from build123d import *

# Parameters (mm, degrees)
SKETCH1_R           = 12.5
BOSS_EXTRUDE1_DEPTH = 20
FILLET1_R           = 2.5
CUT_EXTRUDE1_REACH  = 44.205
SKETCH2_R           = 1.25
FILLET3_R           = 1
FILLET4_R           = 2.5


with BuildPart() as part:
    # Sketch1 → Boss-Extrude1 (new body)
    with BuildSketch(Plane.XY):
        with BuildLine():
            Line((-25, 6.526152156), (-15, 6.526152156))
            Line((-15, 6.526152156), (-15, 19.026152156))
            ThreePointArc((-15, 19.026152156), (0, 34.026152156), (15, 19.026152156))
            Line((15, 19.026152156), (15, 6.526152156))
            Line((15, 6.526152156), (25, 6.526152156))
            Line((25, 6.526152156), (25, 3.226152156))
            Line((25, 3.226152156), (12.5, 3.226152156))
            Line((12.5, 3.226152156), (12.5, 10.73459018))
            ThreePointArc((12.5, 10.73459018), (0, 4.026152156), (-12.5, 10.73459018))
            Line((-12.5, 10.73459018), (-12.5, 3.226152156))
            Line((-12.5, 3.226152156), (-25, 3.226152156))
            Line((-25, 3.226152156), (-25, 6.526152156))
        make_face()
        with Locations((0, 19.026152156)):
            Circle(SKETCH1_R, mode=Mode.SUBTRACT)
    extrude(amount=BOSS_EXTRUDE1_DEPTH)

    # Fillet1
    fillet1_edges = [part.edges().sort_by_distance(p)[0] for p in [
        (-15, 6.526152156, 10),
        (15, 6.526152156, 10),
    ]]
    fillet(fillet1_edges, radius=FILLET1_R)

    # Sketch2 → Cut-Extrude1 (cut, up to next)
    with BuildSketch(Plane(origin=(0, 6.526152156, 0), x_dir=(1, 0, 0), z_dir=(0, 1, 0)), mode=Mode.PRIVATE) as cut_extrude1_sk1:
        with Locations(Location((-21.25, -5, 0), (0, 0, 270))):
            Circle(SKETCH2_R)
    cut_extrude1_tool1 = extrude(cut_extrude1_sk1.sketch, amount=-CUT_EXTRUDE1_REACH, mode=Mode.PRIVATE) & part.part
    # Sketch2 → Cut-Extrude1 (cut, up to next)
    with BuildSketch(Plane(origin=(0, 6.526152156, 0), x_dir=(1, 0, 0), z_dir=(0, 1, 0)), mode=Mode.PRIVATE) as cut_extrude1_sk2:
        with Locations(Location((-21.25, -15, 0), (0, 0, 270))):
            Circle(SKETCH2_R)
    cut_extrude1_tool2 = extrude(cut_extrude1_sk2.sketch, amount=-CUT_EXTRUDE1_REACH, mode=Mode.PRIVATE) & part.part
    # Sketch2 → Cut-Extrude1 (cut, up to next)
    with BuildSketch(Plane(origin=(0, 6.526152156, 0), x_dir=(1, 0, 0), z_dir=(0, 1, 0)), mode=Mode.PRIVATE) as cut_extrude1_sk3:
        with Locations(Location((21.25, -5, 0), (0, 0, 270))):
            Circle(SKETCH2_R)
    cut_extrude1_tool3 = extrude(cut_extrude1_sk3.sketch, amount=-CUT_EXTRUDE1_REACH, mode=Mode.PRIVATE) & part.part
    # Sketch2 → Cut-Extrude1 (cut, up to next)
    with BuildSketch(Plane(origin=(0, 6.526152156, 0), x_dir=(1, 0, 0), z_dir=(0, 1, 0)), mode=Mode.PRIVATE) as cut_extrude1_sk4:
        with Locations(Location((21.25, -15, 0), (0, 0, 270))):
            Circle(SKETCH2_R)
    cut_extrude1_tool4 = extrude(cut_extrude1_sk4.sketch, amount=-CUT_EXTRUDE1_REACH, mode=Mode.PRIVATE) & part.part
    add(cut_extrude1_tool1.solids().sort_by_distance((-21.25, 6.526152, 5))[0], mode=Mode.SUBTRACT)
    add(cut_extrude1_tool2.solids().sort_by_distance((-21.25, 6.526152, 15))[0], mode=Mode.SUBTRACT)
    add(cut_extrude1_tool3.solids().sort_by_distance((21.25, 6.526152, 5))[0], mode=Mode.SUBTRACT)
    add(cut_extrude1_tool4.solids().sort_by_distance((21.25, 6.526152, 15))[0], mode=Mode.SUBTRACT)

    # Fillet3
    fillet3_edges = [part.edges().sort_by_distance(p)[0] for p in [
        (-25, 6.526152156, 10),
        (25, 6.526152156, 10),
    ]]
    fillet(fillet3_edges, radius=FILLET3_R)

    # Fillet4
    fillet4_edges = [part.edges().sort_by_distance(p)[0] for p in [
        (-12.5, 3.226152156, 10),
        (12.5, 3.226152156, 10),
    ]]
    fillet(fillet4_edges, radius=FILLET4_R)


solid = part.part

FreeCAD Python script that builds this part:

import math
import FreeCAD as App
import Part
import Sketcher

V = App.Vector
Q = App.Units.Quantity


def edges_at(feature, points):
    """Names of the edges that pass closest to the given points."""
    edges = feature.Shape.Edges
    near = lambda p: min(range(len(edges)), key=lambda i: edges[i].distToShape(Part.Vertex(*p))[0])
    return sorted({f"Edge{near(p) + 1}" for p in points})

doc = App.newDocument("Part")
body = doc.addObject("PartDesign::Body", "Body")

sketch1 = doc.addObject("Sketcher::SketchObject", "Sketch")
body.addObject(sketch1)
sketch1.AttachmentSupport = (doc.XY_Plane, [""])
sketch1.MapMode = "FlatFace"
sketch1.addGeometry(Part.LineSegment(V(-15, 6.5, 0), V(-25, 6.5, 0)), False)
sketch1.addGeometry(Part.LineSegment(V(-25, 6.5, 0), V(-25, 3.2, 0)), False)
sketch1.addGeometry(Part.LineSegment(V(-25, 3.2, 0), V(-12.5, 3.2, 0)), False)
sketch1.addGeometry(Part.LineSegment(V(-12.5, 3.2, 0), V(-12.5, 10.7, 0)), False)
sketch1.addGeometry(Part.ArcOfCircle(Part.Circle(V(0, 19, 0), V(0, 0, 1), 15), math.radians(-146), math.radians(-34)), False)
sketch1.addGeometry(Part.LineSegment(V(12.5, 10.7, 0), V(12.5, 3.2, 0)), False)
sketch1.addGeometry(Part.LineSegment(V(12.5, 3.2, 0), V(25, 3.2, 0)), False)
sketch1.addGeometry(Part.LineSegment(V(25, 3.2, 0), V(25, 6.5, 0)), False)
sketch1.addGeometry(Part.LineSegment(V(25, 6.5, 0), V(15, 6.5, 0)), False)
sketch1.addGeometry(Part.LineSegment(V(15, 6.5, 0), V(15, 19, 0)), False)
sketch1.addGeometry(Part.ArcOfCircle(Part.Circle(V(0, 19, 0), V(0, 0, 1), 15), math.radians(0), math.radians(180)), False)
sketch1.addGeometry(Part.LineSegment(V(-15, 19, 0), V(-15, 6.5, 0)), False)
sketch1.addGeometry(Part.Circle(V(0, 19, 0), V(0, 0, 1), 12.5), False)
sketch1.addConstraint(Sketcher.Constraint("Coincident", 0, 2, 1, 1))
sketch1.addConstraint(Sketcher.Constraint("Coincident", 1, 2, 2, 1))
sketch1.addConstraint(Sketcher.Constraint("Coincident", 2, 2, 3, 1))
sketch1.addConstraint(Sketcher.Constraint("Coincident", 3, 2, 4, 1))
sketch1.addConstraint(Sketcher.Constraint("Coincident", 4, 2, 5, 1))
sketch1.addConstraint(Sketcher.Constraint("Coincident", 5, 2, 6, 1))
sketch1.addConstraint(Sketcher.Constraint("Coincident", 6, 2, 7, 1))
sketch1.addConstraint(Sketcher.Constraint("Coincident", 7, 2, 8, 1))
sketch1.addConstraint(Sketcher.Constraint("Coincident", 8, 2, 9, 1))
sketch1.addConstraint(Sketcher.Constraint("Tangent", 9, 2, 10, 1))
sketch1.addConstraint(Sketcher.Constraint("Tangent", 10, 2, 11, 1))
sketch1.addConstraint(Sketcher.Constraint("Coincident", 11, 2, 0, 1))
sketch1.addConstraint(Sketcher.Constraint("Horizontal", 0))
sketch1.addConstraint(Sketcher.Constraint("Vertical", 1))
sketch1.addConstraint(Sketcher.Constraint("Horizontal", 2))
sketch1.addConstraint(Sketcher.Constraint("Vertical", 3))
sketch1.addConstraint(Sketcher.Constraint("Vertical", 5))
sketch1.addConstraint(Sketcher.Constraint("Horizontal", 6))
sketch1.addConstraint(Sketcher.Constraint("Vertical", 7))
sketch1.addConstraint(Sketcher.Constraint("Horizontal", 8))
sketch1.addConstraint(Sketcher.Constraint("Vertical", 9))
sketch1.addConstraint(Sketcher.Constraint("Vertical", 11))
sketch1.addConstraint(Sketcher.Constraint("Coincident", 10, 3, 4, 3))
sketch1.addConstraint(Sketcher.Constraint("Coincident", 12, 3, 4, 3))
sketch1.addConstraint(Sketcher.Constraint("Equal", 4, 10))
sketch1.addConstraint(Sketcher.Constraint("Symmetric", 3, 2, 4, 2, -2))
sketch1.addConstraint(Sketcher.Constraint("Symmetric", 1, 2, 6, 2, -2))
sketch1.addConstraint(Sketcher.Constraint("Horizontal", 0, 2, 7, 2))
sketch1.addConstraint(Sketcher.Constraint("Equal", 6, 9))
sketch1.addConstraint(Sketcher.Constraint("Diameter", 12, Q("25 mm")))
sketch1.addConstraint(Sketcher.Constraint("Radius", 4, Q("15 mm")))
sketch1.addConstraint(Sketcher.Constraint("DistanceX", 0, 2, 0, 1, Q("10 mm")))
sketch1.addConstraint(Sketcher.Constraint("DistanceX", 2, 1, 2, 2, Q("12.5 mm")))
sketch1.addConstraint(Sketcher.Constraint("DistanceY", 1, 2, 1, 1, Q("3.3 mm")))
sketch1.addConstraint(Sketcher.Constraint("DistanceY", -1, 1, 3, 2, Q("10.73459 mm")))
pad1 = doc.addObject("PartDesign::Pad", "Pad")
body.addObject(pad1)
pad1.Profile = sketch1
pad1.Length = 20
doc.recompute()

fillet = doc.addObject("PartDesign::Fillet", "Fillet")
body.addObject(fillet)
fillet.Base = (pad1, edges_at(pad1, [(-15, 6.526, 10), (15, 6.526, 10)]))
fillet.Radius = 2.5

sketch2 = doc.addObject("Sketcher::SketchObject", "Sketch001")
body.addObject(sketch2)
sketch2.AttachmentSupport = (doc.XZ_Plane, [""])
sketch2.MapMode = "FlatFace"
sketch2.AttachmentOffset = App.Placement(V(0, 0, -6.526152), App.Rotation())
sketch2.addGeometry(Part.Circle(V(-21.2, 5, 0), V(0, 0, 1), 1.2), False)
sketch2.addConstraint(Sketcher.Constraint("Diameter", 0, Q("2.5 mm")))
sketch2.addConstraint(Sketcher.Constraint("DistanceY", -1, 1, 0, 3, Q("5 mm")))
sketch2.addConstraint(Sketcher.Constraint("DistanceX", 0, 3, -1, 1, Q("21.25 mm")))
pocket1 = doc.addObject("PartDesign::Pocket", "Pocket")
body.addObject(pocket1)
pocket1.Profile = sketch2
pocket1.Type = "UpToFirst"
pocket1.Reversed = True

sketch3 = doc.addObject("Sketcher::SketchObject", "Sketch002")
body.addObject(sketch3)
sketch3.AttachmentSupport = (doc.XZ_Plane, [""])
sketch3.MapMode = "FlatFace"
sketch3.AttachmentOffset = App.Placement(V(0, 0, -6.526152), App.Rotation())
sketch3.addGeometry(Part.Circle(V(-21.2, 15, 0), V(0, 0, 1), 1.2), False)
sketch3.addConstraint(Sketcher.Constraint("Diameter", 0, Q("2.5 mm")))
sketch3.addConstraint(Sketcher.Constraint("DistanceY", -1, 1, 0, 3, Q("15 mm")))
sketch3.addConstraint(Sketcher.Constraint("DistanceX", 0, 3, -1, 1, Q("21.25 mm")))
pocket2 = doc.addObject("PartDesign::Pocket", "Pocket001")
body.addObject(pocket2)
pocket2.Profile = sketch3
pocket2.Type = "UpToFirst"
pocket2.Reversed = True

sketch4 = doc.addObject("Sketcher::SketchObject", "Sketch003")
body.addObject(sketch4)
sketch4.AttachmentSupport = (doc.XZ_Plane, [""])
sketch4.MapMode = "FlatFace"
sketch4.AttachmentOffset = App.Placement(V(0, 0, -6.526152), App.Rotation())
sketch4.addGeometry(Part.Circle(V(21.2, 5, 0), V(0, 0, 1), 1.2), False)
sketch4.addConstraint(Sketcher.Constraint("Diameter", 0, Q("2.5 mm")))
sketch4.addConstraint(Sketcher.Constraint("DistanceY", -1, 1, 0, 3, Q("5 mm")))
sketch4.addConstraint(Sketcher.Constraint("DistanceX", -1, 1, 0, 3, Q("21.25 mm")))
pocket3 = doc.addObject("PartDesign::Pocket", "Pocket002")
body.addObject(pocket3)
pocket3.Profile = sketch4
pocket3.Type = "UpToFirst"
pocket3.Reversed = True

sketch5 = doc.addObject("Sketcher::SketchObject", "Sketch004")
body.addObject(sketch5)
sketch5.AttachmentSupport = (doc.XZ_Plane, [""])
sketch5.MapMode = "FlatFace"
sketch5.AttachmentOffset = App.Placement(V(0, 0, -6.526152), App.Rotation())
sketch5.addGeometry(Part.Circle(V(21.2, 15, 0), V(0, 0, 1), 1.2), False)
sketch5.addConstraint(Sketcher.Constraint("Diameter", 0, Q("2.5 mm")))
sketch5.addConstraint(Sketcher.Constraint("DistanceY", -1, 1, 0, 3, Q("15 mm")))
sketch5.addConstraint(Sketcher.Constraint("DistanceX", -1, 1, 0, 3, Q("21.25 mm")))
pocket4 = doc.addObject("PartDesign::Pocket", "Pocket003")
body.addObject(pocket4)
pocket4.Profile = sketch5
pocket4.Type = "UpToFirst"
pocket4.Reversed = True
doc.recompute()

fillet2 = doc.addObject("PartDesign::Fillet", "Fillet001")
body.addObject(fillet2)
fillet2.Base = (pocket4, edges_at(pocket4, [(-25, 6.526, 10), (25, 6.526, 10)]))
fillet2.Radius = 1
doc.recompute()

fillet3 = doc.addObject("PartDesign::Fillet", "Fillet002")
body.addObject(fillet3)
fillet3.Base = (fillet2, edges_at(fillet2, [(-12.5, 3.226, 10), (12.5, 3.226, 10)]))
fillet3.Radius = 2.5

doc.recompute()
